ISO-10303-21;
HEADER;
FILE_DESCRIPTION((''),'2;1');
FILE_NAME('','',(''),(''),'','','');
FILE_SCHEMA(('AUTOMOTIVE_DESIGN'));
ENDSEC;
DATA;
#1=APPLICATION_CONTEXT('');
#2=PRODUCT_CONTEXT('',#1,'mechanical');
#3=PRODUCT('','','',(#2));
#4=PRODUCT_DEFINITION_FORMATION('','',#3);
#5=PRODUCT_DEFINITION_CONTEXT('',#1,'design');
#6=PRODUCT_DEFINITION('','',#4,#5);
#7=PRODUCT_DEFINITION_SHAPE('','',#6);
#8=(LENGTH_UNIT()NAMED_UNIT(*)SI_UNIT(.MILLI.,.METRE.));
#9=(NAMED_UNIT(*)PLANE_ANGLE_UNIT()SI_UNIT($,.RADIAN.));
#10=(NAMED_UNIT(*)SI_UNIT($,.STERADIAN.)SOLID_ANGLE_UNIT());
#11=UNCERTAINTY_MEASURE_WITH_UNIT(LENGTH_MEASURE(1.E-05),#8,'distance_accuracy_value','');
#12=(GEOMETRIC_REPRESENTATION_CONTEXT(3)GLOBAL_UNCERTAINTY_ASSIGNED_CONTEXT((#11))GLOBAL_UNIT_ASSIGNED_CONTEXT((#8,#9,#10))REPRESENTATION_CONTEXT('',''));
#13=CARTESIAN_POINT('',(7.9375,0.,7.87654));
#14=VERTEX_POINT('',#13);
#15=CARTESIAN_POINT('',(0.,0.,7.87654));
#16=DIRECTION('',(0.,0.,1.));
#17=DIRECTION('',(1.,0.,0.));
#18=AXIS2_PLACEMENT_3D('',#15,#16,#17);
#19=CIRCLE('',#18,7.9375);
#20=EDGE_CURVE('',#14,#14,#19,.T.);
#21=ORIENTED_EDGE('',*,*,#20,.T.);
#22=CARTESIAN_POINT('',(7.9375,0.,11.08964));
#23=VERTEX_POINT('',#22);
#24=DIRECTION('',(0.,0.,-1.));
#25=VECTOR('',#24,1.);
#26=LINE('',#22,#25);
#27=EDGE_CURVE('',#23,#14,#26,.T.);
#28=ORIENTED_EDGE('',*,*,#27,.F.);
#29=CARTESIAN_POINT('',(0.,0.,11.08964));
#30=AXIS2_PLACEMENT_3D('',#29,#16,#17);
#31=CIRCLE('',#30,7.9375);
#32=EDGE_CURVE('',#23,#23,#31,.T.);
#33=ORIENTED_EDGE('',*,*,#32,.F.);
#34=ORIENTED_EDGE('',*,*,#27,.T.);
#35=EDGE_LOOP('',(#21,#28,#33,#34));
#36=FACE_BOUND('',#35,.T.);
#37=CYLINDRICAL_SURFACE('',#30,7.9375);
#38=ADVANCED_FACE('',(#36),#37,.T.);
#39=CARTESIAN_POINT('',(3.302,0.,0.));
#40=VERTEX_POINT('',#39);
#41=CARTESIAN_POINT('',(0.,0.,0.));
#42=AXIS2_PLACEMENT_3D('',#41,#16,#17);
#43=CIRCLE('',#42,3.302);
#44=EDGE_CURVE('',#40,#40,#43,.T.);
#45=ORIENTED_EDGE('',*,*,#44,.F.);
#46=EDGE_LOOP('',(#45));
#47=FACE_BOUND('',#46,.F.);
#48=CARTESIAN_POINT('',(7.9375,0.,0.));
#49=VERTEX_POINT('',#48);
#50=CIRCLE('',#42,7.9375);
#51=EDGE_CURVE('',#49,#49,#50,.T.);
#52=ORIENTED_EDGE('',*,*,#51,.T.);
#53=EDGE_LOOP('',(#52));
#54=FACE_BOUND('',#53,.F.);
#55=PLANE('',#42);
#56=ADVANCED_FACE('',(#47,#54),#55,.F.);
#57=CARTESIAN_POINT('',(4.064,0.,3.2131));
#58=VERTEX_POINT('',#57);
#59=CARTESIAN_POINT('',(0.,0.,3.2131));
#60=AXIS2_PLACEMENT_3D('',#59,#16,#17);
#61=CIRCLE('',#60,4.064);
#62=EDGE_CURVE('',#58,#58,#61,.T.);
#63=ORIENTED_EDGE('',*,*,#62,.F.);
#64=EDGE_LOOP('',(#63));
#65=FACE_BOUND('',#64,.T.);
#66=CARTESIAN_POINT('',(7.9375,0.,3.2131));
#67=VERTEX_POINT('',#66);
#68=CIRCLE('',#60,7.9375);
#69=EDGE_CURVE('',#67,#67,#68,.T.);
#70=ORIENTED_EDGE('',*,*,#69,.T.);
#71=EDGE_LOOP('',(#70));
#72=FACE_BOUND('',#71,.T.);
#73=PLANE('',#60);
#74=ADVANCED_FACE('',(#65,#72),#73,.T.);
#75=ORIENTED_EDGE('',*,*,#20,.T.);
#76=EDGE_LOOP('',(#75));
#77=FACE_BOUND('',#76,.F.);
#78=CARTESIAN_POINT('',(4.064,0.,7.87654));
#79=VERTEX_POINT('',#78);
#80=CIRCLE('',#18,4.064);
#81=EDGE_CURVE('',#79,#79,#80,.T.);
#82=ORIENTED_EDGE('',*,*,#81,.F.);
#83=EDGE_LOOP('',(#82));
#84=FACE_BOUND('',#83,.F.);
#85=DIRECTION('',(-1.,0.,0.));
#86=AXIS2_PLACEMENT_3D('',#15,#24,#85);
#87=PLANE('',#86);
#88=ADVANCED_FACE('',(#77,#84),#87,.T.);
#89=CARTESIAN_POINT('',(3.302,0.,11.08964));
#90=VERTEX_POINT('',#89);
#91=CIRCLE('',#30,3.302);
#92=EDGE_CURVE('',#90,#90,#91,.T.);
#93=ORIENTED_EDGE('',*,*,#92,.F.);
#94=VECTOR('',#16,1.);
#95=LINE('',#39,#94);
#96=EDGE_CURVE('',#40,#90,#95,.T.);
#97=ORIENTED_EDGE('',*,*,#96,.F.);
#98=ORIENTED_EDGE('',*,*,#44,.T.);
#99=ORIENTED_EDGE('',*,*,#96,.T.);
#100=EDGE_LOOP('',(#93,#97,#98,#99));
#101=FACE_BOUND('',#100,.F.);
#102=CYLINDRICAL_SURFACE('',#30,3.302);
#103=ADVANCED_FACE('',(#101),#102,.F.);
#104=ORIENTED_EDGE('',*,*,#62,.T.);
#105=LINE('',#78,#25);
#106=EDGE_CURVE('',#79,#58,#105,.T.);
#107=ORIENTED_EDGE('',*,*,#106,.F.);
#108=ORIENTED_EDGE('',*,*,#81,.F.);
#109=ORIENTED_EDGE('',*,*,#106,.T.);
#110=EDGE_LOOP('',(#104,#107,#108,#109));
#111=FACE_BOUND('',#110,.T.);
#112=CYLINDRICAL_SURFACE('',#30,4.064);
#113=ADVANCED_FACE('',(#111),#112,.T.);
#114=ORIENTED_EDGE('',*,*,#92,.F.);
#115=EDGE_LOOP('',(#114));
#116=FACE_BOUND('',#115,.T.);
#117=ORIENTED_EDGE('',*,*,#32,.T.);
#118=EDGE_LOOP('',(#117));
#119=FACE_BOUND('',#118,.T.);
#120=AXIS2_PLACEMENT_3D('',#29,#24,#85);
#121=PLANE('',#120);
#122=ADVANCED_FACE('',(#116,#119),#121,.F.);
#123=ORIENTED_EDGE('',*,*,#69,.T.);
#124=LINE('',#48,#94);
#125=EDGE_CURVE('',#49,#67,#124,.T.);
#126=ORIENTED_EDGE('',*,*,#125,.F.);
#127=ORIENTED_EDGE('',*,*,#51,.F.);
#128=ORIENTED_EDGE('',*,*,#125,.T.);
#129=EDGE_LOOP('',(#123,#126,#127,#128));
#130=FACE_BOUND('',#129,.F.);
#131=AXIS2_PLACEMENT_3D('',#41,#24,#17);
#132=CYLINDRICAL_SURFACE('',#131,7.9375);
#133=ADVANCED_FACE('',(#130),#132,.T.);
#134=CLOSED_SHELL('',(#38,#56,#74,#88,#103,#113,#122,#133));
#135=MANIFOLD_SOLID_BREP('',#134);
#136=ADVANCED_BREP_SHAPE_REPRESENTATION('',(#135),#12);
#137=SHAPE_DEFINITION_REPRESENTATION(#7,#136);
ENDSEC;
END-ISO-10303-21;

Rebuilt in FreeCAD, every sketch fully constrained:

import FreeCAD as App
import Part
import Sketcher
Q = App.Units.Quantity

doc = App.newDocument("Part")
body = doc.addObject("PartDesign::Body", "Body")

# Sketch on XY plane
sketch1 = body.newObject("Sketcher::SketchObject", "Sketch")
sketch1.AttachmentSupport = (doc.getObject("XY_Plane"), [""])
sketch1.MapMode = "FlatFace"
sketch1.addGeometry([
    Part.Circle(App.Vector(0, 0, 0), App.Vector(0, 0, 1), 4.1),
    Part.Circle(App.Vector(0, 0, 0), App.Vector(0, 0, 1), 3.3),
], False)
sketch1.addConstraint([
    Sketcher.Constraint("Coincident", 0, 3, -1, 1),
    Sketcher.Constraint("Coincident", 1, 3, -1, 1),
    Sketcher.Constraint("Diameter", 0, Q("0.32 in")),
    Sketcher.Constraint("Diameter", 1, Q("0.26 in")),
])
pad1 = body.newObject("PartDesign::Pad", "Pad")
pad1.Profile = sketch1
pad1.Length = Q("0.2183 in")

# Sketch on XY plane
sketch2 = body.newObject("Sketcher::SketchObject", "Sketch001")
sketch2.AttachmentSupport = (doc.getObject("XY_Plane"), [""])
sketch2.MapMode = "FlatFace"
sketch2.addGeometry([
    Part.Circle(App.Vector(0, 0, 0), App.Vector(0, 0, 1), 7.9),
    Part.Circle(App.Vector(0, 0, 0), App.Vector(0, 0, 1), 4.1),
], False)
sketch2.addConstraint([
    Sketcher.Constraint("Coincident", 0, 3, -1, 1),
    Sketcher.Constraint("Coincident", 1, 3, -1, 1),
    Sketcher.Constraint("Diameter", 1, Q("0.32 in")),
    Sketcher.Constraint("Diameter", 0, Q("0.625 in")),
])
pad2 = body.newObject("PartDesign::Pad", "Pad001")
pad2.Profile = sketch2
pad2.Length = Q("0.1265 in")
body2 = doc.addObject("PartDesign::Body", "Body001")
doc.recompute()

body2.BaseFeature = body
doc.recompute()

mirroring = doc.addObject("Part::Mirroring", "Mirroring")
mirroring.Source = body
mirroring.Base = App.Vector(0, 0, 5.54482)
mirroring.Normal = App.Vector(0, 0, 1)
body3 = doc.addObject("PartDesign::Body", "Body002")
body3.BaseFeature = mirroring
boolean = body2.newObject("PartDesign::Boolean", "Boolean")
boolean.Type = "Fuse"
boolean.addObjects([body3])
doc.recompute()
mirroring.Visibility = False

doc.recompute()
